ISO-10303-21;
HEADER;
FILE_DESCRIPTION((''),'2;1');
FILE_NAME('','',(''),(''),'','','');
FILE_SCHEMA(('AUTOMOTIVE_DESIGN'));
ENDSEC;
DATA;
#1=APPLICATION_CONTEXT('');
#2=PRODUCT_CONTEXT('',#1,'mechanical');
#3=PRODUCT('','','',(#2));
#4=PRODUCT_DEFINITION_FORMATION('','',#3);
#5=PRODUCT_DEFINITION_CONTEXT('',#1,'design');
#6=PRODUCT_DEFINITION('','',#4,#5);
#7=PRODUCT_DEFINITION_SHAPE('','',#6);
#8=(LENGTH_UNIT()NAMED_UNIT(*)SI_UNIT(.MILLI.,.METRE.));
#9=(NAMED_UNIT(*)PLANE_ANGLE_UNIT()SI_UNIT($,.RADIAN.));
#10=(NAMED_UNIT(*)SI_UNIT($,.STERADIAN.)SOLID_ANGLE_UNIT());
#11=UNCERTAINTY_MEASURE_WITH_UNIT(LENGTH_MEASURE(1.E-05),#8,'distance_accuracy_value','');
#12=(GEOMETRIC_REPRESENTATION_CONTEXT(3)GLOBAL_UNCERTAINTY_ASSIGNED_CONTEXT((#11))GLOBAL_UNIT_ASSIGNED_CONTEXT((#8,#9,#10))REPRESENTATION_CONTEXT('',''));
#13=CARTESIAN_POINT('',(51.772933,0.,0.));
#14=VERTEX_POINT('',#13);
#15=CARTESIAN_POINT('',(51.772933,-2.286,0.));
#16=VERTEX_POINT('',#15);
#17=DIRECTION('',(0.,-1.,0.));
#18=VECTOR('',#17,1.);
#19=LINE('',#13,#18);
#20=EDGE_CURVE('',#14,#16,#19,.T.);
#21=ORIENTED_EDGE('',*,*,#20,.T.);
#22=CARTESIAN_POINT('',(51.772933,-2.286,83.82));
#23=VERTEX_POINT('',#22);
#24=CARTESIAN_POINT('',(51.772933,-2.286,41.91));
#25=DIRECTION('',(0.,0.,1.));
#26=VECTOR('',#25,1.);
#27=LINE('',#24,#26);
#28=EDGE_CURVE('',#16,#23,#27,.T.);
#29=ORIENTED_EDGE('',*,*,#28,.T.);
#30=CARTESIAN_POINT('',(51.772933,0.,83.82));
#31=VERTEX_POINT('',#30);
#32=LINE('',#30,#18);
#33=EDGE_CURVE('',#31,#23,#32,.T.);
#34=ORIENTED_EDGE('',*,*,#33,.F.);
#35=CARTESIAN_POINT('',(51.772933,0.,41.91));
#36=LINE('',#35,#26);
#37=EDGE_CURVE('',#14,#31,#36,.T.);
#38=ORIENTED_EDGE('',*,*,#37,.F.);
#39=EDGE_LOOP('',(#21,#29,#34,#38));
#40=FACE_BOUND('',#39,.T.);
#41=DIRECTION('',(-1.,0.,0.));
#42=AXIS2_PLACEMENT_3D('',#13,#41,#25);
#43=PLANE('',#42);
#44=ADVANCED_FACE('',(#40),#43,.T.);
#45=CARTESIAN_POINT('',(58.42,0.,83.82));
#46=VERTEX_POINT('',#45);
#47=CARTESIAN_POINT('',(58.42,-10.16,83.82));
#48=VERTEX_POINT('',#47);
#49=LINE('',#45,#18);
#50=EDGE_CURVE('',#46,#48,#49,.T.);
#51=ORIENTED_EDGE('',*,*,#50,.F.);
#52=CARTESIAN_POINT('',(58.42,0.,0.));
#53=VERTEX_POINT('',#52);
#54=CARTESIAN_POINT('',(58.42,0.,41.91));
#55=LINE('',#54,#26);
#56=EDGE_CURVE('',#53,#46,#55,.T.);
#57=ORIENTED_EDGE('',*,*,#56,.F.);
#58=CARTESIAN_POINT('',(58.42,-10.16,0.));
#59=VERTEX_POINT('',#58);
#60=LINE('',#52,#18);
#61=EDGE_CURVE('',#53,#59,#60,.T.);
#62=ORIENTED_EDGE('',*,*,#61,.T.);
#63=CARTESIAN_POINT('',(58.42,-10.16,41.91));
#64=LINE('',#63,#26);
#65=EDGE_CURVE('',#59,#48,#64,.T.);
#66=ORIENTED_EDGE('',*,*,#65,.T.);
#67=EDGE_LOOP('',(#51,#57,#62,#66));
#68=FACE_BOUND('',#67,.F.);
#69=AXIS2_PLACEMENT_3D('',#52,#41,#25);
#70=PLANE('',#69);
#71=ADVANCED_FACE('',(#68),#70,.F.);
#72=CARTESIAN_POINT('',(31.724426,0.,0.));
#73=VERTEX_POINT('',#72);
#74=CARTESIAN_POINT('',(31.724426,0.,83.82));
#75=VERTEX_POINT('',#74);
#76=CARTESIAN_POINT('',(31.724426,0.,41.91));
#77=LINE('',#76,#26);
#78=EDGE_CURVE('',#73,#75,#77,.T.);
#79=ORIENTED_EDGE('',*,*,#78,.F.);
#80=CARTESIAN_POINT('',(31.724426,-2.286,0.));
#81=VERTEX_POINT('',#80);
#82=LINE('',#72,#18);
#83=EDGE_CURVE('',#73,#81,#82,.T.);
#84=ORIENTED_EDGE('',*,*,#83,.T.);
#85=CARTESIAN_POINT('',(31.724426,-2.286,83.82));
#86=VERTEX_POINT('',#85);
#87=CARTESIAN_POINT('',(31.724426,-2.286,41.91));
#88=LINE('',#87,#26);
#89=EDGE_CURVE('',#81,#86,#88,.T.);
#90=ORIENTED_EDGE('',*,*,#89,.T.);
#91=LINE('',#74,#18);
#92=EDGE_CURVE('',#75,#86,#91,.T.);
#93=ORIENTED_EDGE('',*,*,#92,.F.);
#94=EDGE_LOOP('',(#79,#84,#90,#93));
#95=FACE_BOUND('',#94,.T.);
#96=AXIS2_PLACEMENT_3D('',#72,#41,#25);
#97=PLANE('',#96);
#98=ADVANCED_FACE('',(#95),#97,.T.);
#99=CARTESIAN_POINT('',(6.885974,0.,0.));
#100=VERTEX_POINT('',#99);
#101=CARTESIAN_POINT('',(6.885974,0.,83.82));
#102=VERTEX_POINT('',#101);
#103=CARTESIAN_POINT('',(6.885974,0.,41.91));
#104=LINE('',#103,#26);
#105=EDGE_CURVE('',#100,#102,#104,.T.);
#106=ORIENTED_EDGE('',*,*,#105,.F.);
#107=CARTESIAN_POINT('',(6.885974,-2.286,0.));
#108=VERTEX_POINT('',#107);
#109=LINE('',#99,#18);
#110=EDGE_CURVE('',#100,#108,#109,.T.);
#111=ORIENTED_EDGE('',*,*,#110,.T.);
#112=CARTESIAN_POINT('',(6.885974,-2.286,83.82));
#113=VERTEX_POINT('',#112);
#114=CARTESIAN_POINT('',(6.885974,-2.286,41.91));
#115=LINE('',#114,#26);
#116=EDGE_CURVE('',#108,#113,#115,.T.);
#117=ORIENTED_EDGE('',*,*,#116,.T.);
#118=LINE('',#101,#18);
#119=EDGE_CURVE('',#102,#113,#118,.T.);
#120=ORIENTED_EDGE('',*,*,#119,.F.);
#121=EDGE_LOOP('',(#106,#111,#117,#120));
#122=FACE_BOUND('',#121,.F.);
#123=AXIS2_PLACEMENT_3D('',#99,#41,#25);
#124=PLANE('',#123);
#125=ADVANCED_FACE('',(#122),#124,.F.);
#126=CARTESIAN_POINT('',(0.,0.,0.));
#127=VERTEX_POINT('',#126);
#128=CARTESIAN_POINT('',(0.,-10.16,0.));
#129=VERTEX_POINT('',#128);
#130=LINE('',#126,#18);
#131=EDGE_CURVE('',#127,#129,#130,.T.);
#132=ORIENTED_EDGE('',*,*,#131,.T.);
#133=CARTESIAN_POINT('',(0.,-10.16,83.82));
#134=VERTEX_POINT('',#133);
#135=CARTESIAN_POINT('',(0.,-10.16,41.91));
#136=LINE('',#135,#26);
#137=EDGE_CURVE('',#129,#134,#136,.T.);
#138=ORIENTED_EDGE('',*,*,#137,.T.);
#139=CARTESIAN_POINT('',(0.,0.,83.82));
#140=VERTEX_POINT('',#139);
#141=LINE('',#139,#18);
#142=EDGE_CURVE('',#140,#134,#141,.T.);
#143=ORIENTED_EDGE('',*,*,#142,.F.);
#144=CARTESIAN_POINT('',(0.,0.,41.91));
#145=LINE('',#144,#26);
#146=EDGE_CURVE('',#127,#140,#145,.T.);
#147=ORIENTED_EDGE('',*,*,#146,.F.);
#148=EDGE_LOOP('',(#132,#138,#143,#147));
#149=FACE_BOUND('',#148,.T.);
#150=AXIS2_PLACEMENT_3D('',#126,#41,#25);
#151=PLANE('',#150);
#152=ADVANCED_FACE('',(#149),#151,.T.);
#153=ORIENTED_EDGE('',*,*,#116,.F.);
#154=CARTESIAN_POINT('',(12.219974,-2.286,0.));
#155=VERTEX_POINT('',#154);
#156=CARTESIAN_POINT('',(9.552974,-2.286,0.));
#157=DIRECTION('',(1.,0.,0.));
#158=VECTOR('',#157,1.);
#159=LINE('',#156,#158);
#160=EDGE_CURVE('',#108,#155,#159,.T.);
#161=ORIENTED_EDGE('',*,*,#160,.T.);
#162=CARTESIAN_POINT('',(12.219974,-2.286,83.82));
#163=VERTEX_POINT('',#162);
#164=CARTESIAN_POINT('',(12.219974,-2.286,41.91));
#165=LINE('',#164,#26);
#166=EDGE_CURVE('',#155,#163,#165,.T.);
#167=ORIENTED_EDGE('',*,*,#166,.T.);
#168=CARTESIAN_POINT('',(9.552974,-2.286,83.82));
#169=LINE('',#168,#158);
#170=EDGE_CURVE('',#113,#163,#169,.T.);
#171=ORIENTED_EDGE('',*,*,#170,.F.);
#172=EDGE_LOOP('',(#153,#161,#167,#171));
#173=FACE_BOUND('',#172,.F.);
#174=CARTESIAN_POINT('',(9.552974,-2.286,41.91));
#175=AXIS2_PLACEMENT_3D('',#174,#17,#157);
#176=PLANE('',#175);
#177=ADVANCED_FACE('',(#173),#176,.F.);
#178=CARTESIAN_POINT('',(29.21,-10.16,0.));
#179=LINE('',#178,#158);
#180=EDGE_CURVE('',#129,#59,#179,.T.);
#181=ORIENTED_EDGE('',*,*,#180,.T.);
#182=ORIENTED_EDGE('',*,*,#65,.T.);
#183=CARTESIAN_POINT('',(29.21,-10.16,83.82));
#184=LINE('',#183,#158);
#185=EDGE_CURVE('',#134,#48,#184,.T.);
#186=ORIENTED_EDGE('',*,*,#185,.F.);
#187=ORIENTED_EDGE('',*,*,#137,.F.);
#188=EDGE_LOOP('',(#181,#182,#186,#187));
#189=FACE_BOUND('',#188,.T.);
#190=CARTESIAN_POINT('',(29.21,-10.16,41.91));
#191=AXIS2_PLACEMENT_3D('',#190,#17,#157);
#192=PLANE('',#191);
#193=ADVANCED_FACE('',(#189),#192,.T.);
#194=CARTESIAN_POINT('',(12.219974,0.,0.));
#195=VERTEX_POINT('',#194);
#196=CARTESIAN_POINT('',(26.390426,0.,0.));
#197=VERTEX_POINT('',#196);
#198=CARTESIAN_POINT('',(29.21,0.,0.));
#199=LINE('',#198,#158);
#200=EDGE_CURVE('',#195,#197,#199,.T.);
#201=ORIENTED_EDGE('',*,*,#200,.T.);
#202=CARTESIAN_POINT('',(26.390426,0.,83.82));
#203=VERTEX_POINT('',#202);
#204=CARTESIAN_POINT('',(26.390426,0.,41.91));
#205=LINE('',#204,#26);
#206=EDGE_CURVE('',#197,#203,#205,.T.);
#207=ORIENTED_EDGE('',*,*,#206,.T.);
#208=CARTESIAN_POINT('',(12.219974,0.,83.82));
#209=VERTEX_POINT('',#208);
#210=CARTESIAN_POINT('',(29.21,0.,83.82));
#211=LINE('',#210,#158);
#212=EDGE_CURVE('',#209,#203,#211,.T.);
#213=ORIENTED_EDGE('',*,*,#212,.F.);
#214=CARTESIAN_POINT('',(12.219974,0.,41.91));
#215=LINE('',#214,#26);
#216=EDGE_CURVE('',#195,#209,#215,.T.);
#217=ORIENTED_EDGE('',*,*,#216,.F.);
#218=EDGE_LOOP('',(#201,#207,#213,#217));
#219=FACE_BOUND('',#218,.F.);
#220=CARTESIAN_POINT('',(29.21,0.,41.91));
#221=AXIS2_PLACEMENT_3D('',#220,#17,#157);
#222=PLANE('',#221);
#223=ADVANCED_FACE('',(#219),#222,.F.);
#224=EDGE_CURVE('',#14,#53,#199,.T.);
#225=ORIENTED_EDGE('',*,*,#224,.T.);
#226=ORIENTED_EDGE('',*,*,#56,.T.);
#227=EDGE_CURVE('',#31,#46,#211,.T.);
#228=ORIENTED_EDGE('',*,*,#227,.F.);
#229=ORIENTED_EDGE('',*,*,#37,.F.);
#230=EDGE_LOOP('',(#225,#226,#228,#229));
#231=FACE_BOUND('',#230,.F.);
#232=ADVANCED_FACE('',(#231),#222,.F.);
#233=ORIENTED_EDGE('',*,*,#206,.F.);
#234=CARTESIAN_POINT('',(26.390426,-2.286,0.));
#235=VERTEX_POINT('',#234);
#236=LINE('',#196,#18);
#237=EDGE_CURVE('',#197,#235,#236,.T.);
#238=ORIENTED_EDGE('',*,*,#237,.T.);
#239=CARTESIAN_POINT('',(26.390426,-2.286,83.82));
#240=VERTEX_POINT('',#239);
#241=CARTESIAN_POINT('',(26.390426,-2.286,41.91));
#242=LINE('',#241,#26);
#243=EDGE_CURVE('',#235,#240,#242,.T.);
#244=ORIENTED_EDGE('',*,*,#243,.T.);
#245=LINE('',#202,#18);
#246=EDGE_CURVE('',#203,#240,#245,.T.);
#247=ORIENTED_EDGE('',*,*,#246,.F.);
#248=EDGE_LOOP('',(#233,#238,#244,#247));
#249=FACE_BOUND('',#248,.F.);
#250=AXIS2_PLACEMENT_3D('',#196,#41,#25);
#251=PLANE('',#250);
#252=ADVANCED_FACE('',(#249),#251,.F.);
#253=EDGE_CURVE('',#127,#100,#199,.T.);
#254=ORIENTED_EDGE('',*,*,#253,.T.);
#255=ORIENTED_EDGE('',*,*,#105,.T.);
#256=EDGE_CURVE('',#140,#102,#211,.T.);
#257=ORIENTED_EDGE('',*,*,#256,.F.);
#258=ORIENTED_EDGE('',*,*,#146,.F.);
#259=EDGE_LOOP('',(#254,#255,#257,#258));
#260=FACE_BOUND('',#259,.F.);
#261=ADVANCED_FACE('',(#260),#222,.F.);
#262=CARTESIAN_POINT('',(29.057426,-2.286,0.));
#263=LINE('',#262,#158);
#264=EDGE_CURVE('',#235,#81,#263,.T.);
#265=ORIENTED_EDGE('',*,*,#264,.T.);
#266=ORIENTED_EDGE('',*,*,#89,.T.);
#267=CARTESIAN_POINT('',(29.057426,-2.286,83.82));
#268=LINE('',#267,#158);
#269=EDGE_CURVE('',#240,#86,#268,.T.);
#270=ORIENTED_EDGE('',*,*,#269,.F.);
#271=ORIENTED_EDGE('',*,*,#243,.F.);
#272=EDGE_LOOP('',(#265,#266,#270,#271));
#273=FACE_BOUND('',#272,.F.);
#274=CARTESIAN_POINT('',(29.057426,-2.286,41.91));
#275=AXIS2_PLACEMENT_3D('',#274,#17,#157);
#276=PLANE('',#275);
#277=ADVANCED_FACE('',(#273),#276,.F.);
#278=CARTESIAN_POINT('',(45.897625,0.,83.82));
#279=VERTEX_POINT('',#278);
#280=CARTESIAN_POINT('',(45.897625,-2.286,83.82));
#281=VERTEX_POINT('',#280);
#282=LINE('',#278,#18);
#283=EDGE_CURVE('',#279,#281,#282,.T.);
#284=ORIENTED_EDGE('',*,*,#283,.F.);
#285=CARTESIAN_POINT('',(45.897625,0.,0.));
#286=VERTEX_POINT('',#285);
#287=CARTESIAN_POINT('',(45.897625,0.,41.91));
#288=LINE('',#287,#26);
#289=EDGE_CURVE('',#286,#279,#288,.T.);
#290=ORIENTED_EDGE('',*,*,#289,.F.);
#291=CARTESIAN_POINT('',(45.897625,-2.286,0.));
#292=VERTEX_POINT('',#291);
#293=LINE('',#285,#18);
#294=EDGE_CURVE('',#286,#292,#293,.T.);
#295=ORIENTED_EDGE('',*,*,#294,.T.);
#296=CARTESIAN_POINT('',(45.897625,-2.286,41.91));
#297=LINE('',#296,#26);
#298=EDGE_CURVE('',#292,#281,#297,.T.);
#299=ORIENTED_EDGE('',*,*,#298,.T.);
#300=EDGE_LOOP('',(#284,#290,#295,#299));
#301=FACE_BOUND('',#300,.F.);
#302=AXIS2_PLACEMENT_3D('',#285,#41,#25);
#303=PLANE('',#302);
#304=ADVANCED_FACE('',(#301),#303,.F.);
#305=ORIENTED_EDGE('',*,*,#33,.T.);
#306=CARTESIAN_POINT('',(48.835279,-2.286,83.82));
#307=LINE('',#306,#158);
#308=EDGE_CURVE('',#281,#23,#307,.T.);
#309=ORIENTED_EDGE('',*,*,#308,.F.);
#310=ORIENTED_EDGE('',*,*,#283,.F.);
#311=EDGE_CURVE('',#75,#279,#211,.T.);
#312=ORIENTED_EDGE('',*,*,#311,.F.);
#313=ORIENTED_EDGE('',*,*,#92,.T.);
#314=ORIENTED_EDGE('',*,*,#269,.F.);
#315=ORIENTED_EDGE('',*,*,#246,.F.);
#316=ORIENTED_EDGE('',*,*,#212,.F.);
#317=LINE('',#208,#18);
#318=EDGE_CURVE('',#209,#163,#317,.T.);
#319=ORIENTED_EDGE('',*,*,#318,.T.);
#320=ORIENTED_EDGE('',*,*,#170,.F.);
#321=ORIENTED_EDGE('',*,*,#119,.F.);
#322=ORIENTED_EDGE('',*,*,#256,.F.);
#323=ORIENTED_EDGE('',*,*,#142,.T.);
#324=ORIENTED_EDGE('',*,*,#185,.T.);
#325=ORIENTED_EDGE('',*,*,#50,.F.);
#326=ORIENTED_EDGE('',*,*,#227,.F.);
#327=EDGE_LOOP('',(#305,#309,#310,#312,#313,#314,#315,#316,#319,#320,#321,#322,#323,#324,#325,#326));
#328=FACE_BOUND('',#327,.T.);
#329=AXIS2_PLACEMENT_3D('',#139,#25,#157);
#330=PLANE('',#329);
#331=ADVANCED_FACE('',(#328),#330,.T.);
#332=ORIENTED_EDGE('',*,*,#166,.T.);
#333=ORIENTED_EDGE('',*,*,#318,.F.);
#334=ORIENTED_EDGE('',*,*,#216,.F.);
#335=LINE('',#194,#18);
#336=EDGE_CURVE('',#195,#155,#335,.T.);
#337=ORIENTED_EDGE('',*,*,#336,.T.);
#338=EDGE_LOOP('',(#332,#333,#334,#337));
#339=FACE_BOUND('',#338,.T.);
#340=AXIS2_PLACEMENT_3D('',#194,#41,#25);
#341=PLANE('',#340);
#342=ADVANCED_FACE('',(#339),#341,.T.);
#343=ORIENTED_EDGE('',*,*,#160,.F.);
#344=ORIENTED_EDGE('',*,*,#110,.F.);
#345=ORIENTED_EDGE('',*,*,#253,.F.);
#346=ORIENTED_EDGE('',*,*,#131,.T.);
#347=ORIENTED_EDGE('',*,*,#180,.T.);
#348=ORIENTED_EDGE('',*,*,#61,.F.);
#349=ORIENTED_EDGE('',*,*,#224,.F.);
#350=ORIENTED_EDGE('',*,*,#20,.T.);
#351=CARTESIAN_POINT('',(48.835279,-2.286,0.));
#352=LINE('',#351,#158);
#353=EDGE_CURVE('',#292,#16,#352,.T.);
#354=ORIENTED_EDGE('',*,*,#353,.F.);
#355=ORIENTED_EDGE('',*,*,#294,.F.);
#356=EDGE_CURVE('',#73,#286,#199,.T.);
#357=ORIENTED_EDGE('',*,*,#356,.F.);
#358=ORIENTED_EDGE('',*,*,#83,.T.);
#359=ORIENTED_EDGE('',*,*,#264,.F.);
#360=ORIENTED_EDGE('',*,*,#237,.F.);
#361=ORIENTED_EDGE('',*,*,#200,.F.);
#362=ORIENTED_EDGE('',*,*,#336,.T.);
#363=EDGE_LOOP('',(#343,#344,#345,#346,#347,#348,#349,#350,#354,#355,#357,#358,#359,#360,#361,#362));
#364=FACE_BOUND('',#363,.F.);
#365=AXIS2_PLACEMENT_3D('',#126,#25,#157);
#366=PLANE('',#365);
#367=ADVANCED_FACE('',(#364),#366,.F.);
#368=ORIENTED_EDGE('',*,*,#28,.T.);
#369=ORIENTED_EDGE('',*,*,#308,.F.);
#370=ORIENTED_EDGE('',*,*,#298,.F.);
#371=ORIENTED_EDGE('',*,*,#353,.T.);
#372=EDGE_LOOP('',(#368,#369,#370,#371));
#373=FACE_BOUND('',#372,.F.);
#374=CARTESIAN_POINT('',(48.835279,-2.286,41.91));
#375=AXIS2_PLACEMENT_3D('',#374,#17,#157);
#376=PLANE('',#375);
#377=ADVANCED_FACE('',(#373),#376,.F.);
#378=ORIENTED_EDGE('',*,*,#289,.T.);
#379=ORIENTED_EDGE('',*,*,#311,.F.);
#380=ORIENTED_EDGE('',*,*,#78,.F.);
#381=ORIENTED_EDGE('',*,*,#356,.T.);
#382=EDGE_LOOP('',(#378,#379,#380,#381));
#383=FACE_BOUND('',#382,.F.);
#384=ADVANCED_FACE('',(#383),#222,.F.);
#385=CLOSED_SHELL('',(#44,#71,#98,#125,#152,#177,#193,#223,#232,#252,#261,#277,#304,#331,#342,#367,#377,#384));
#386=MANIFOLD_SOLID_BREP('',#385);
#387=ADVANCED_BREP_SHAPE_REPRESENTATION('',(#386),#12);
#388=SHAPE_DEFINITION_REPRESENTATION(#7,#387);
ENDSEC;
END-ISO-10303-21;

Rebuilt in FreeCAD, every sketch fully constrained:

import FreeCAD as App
import Part
import Sketcher
Q = App.Units.Quantity


def add_polygon(sketch, points):
    """Adds a closed chain of lines whose ends are joined by coincident constraints."""
    first, n = sketch.GeometryCount, len(points)
    for a, b in zip(points, points[1:] + points[:1]):
        sketch.addGeometry(Part.LineSegment(App.Vector(*a, 0), App.Vector(*b, 0)), False)
    for i in range(n):
        sketch.addConstraint(Sketcher.Constraint("Coincident", first + i, 2, first + (i + 1) % n, 1))

doc = App.newDocument("Part")
body = doc.addObject("PartDesign::Body", "Body")

sketch1 = doc.addObject("Sketcher::SketchObject", "Sketch")
body.addObject(sketch1)
sketch1.AttachmentSupport = (doc.XZ_Plane, [""])
sketch1.MapMode = "FlatFace"
add_polygon(sketch1, [(0, 84), (0, 0), (58, 0), (58, 84)])
sketch1.addConstraint([
    Sketcher.Constraint("Vertical", 0),
    Sketcher.Constraint("Horizontal", 1),
    Sketcher.Constraint("Vertical", 2),
    Sketcher.Constraint("Horizontal", 3),
    Sketcher.Constraint("Coincident", 0, 2, -1, 1),
    Sketcher.Constraint("DistanceX", 1, 1, 1, 2, Q("2.3 in")),
    Sketcher.Constraint("DistanceY", 0, 2, 0, 1, Q("3.3 in")),
])
pad1 = doc.addObject("PartDesign::Pad", "Pad")
body.addObject(pad1)
pad1.Profile = sketch1
pad1.Length = Q("0.4 in")

sketch2 = doc.addObject("Sketcher::SketchObject", "Sketch001")
body.addObject(sketch2)
sketch2.AttachmentSupport = (doc.XZ_Plane, [""])
sketch2.MapMode = "FlatFace"
add_polygon(sketch2, [(7, 84), (7, 0), (12, 0), (12, 84)])
add_polygon(sketch2, [(26, 84), (26, 0), (32, 0), (32, 84)])
add_polygon(sketch2, [(46, 84), (46, 0), (52, 0), (52, 84)])
sketch2.addConstraint([
    Sketcher.Constraint("Vertical", 0),
    Sketcher.Constraint("Horizontal", 1),
    Sketcher.Constraint("Vertical", 2),
    Sketcher.Constraint("Horizontal", 3),
    Sketcher.Constraint("Vertical", 4),
    Sketcher.Constraint("Horizontal", 5),
    Sketcher.Constraint("Vertical", 6),
    Sketcher.Constraint("Horizontal", 7),
    Sketcher.Constraint("Vertical", 8),
    Sketcher.Constraint("Horizontal", 9),
    Sketcher.Constraint("Vertical", 10),
    Sketcher.Constraint("Horizontal", 11),
    Sketcher.Constraint("PointOnObject", 0, 2, -1),
    Sketcher.Constraint("PointOnObject", 4, 2, -1),
    Sketcher.Constraint("PointOnObject", 8, 2, -1),
    Sketcher.Constraint("Horizontal", 3, 2, 6, 2),
    Sketcher.Constraint("Horizontal", 7, 2, 10, 2),
    Sketcher.Constraint("Equal", 3, 5),
    Sketcher.Constraint("DistanceY", 0, 2, 0, 1, Q("3.3 in")),
    Sketcher.Constraint("DistanceX", 1, 1, 1, 2, Q("0.21 in")),
    Sketcher.Constraint("DistanceX", 5, 2, 8, 2, Q("0.558 in")),
    Sketcher.Constraint("DistanceX", 9, 1, 9, 2, 5.875307),
    Sketcher.Constraint("DistanceX", 0, 2, 5, 2, 24.838452),
    Sketcher.Constraint("DistanceX", -1, 1, 0, 2, 6.885974),
])
pocket1 = doc.addObject("PartDesign::Pocket", "Pocket")
body.addObject(pocket1)
pocket1.Profile = sketch2
pocket1.Length = Q("0.09 in")
pocket1.Reversed = True

doc.recompute()
